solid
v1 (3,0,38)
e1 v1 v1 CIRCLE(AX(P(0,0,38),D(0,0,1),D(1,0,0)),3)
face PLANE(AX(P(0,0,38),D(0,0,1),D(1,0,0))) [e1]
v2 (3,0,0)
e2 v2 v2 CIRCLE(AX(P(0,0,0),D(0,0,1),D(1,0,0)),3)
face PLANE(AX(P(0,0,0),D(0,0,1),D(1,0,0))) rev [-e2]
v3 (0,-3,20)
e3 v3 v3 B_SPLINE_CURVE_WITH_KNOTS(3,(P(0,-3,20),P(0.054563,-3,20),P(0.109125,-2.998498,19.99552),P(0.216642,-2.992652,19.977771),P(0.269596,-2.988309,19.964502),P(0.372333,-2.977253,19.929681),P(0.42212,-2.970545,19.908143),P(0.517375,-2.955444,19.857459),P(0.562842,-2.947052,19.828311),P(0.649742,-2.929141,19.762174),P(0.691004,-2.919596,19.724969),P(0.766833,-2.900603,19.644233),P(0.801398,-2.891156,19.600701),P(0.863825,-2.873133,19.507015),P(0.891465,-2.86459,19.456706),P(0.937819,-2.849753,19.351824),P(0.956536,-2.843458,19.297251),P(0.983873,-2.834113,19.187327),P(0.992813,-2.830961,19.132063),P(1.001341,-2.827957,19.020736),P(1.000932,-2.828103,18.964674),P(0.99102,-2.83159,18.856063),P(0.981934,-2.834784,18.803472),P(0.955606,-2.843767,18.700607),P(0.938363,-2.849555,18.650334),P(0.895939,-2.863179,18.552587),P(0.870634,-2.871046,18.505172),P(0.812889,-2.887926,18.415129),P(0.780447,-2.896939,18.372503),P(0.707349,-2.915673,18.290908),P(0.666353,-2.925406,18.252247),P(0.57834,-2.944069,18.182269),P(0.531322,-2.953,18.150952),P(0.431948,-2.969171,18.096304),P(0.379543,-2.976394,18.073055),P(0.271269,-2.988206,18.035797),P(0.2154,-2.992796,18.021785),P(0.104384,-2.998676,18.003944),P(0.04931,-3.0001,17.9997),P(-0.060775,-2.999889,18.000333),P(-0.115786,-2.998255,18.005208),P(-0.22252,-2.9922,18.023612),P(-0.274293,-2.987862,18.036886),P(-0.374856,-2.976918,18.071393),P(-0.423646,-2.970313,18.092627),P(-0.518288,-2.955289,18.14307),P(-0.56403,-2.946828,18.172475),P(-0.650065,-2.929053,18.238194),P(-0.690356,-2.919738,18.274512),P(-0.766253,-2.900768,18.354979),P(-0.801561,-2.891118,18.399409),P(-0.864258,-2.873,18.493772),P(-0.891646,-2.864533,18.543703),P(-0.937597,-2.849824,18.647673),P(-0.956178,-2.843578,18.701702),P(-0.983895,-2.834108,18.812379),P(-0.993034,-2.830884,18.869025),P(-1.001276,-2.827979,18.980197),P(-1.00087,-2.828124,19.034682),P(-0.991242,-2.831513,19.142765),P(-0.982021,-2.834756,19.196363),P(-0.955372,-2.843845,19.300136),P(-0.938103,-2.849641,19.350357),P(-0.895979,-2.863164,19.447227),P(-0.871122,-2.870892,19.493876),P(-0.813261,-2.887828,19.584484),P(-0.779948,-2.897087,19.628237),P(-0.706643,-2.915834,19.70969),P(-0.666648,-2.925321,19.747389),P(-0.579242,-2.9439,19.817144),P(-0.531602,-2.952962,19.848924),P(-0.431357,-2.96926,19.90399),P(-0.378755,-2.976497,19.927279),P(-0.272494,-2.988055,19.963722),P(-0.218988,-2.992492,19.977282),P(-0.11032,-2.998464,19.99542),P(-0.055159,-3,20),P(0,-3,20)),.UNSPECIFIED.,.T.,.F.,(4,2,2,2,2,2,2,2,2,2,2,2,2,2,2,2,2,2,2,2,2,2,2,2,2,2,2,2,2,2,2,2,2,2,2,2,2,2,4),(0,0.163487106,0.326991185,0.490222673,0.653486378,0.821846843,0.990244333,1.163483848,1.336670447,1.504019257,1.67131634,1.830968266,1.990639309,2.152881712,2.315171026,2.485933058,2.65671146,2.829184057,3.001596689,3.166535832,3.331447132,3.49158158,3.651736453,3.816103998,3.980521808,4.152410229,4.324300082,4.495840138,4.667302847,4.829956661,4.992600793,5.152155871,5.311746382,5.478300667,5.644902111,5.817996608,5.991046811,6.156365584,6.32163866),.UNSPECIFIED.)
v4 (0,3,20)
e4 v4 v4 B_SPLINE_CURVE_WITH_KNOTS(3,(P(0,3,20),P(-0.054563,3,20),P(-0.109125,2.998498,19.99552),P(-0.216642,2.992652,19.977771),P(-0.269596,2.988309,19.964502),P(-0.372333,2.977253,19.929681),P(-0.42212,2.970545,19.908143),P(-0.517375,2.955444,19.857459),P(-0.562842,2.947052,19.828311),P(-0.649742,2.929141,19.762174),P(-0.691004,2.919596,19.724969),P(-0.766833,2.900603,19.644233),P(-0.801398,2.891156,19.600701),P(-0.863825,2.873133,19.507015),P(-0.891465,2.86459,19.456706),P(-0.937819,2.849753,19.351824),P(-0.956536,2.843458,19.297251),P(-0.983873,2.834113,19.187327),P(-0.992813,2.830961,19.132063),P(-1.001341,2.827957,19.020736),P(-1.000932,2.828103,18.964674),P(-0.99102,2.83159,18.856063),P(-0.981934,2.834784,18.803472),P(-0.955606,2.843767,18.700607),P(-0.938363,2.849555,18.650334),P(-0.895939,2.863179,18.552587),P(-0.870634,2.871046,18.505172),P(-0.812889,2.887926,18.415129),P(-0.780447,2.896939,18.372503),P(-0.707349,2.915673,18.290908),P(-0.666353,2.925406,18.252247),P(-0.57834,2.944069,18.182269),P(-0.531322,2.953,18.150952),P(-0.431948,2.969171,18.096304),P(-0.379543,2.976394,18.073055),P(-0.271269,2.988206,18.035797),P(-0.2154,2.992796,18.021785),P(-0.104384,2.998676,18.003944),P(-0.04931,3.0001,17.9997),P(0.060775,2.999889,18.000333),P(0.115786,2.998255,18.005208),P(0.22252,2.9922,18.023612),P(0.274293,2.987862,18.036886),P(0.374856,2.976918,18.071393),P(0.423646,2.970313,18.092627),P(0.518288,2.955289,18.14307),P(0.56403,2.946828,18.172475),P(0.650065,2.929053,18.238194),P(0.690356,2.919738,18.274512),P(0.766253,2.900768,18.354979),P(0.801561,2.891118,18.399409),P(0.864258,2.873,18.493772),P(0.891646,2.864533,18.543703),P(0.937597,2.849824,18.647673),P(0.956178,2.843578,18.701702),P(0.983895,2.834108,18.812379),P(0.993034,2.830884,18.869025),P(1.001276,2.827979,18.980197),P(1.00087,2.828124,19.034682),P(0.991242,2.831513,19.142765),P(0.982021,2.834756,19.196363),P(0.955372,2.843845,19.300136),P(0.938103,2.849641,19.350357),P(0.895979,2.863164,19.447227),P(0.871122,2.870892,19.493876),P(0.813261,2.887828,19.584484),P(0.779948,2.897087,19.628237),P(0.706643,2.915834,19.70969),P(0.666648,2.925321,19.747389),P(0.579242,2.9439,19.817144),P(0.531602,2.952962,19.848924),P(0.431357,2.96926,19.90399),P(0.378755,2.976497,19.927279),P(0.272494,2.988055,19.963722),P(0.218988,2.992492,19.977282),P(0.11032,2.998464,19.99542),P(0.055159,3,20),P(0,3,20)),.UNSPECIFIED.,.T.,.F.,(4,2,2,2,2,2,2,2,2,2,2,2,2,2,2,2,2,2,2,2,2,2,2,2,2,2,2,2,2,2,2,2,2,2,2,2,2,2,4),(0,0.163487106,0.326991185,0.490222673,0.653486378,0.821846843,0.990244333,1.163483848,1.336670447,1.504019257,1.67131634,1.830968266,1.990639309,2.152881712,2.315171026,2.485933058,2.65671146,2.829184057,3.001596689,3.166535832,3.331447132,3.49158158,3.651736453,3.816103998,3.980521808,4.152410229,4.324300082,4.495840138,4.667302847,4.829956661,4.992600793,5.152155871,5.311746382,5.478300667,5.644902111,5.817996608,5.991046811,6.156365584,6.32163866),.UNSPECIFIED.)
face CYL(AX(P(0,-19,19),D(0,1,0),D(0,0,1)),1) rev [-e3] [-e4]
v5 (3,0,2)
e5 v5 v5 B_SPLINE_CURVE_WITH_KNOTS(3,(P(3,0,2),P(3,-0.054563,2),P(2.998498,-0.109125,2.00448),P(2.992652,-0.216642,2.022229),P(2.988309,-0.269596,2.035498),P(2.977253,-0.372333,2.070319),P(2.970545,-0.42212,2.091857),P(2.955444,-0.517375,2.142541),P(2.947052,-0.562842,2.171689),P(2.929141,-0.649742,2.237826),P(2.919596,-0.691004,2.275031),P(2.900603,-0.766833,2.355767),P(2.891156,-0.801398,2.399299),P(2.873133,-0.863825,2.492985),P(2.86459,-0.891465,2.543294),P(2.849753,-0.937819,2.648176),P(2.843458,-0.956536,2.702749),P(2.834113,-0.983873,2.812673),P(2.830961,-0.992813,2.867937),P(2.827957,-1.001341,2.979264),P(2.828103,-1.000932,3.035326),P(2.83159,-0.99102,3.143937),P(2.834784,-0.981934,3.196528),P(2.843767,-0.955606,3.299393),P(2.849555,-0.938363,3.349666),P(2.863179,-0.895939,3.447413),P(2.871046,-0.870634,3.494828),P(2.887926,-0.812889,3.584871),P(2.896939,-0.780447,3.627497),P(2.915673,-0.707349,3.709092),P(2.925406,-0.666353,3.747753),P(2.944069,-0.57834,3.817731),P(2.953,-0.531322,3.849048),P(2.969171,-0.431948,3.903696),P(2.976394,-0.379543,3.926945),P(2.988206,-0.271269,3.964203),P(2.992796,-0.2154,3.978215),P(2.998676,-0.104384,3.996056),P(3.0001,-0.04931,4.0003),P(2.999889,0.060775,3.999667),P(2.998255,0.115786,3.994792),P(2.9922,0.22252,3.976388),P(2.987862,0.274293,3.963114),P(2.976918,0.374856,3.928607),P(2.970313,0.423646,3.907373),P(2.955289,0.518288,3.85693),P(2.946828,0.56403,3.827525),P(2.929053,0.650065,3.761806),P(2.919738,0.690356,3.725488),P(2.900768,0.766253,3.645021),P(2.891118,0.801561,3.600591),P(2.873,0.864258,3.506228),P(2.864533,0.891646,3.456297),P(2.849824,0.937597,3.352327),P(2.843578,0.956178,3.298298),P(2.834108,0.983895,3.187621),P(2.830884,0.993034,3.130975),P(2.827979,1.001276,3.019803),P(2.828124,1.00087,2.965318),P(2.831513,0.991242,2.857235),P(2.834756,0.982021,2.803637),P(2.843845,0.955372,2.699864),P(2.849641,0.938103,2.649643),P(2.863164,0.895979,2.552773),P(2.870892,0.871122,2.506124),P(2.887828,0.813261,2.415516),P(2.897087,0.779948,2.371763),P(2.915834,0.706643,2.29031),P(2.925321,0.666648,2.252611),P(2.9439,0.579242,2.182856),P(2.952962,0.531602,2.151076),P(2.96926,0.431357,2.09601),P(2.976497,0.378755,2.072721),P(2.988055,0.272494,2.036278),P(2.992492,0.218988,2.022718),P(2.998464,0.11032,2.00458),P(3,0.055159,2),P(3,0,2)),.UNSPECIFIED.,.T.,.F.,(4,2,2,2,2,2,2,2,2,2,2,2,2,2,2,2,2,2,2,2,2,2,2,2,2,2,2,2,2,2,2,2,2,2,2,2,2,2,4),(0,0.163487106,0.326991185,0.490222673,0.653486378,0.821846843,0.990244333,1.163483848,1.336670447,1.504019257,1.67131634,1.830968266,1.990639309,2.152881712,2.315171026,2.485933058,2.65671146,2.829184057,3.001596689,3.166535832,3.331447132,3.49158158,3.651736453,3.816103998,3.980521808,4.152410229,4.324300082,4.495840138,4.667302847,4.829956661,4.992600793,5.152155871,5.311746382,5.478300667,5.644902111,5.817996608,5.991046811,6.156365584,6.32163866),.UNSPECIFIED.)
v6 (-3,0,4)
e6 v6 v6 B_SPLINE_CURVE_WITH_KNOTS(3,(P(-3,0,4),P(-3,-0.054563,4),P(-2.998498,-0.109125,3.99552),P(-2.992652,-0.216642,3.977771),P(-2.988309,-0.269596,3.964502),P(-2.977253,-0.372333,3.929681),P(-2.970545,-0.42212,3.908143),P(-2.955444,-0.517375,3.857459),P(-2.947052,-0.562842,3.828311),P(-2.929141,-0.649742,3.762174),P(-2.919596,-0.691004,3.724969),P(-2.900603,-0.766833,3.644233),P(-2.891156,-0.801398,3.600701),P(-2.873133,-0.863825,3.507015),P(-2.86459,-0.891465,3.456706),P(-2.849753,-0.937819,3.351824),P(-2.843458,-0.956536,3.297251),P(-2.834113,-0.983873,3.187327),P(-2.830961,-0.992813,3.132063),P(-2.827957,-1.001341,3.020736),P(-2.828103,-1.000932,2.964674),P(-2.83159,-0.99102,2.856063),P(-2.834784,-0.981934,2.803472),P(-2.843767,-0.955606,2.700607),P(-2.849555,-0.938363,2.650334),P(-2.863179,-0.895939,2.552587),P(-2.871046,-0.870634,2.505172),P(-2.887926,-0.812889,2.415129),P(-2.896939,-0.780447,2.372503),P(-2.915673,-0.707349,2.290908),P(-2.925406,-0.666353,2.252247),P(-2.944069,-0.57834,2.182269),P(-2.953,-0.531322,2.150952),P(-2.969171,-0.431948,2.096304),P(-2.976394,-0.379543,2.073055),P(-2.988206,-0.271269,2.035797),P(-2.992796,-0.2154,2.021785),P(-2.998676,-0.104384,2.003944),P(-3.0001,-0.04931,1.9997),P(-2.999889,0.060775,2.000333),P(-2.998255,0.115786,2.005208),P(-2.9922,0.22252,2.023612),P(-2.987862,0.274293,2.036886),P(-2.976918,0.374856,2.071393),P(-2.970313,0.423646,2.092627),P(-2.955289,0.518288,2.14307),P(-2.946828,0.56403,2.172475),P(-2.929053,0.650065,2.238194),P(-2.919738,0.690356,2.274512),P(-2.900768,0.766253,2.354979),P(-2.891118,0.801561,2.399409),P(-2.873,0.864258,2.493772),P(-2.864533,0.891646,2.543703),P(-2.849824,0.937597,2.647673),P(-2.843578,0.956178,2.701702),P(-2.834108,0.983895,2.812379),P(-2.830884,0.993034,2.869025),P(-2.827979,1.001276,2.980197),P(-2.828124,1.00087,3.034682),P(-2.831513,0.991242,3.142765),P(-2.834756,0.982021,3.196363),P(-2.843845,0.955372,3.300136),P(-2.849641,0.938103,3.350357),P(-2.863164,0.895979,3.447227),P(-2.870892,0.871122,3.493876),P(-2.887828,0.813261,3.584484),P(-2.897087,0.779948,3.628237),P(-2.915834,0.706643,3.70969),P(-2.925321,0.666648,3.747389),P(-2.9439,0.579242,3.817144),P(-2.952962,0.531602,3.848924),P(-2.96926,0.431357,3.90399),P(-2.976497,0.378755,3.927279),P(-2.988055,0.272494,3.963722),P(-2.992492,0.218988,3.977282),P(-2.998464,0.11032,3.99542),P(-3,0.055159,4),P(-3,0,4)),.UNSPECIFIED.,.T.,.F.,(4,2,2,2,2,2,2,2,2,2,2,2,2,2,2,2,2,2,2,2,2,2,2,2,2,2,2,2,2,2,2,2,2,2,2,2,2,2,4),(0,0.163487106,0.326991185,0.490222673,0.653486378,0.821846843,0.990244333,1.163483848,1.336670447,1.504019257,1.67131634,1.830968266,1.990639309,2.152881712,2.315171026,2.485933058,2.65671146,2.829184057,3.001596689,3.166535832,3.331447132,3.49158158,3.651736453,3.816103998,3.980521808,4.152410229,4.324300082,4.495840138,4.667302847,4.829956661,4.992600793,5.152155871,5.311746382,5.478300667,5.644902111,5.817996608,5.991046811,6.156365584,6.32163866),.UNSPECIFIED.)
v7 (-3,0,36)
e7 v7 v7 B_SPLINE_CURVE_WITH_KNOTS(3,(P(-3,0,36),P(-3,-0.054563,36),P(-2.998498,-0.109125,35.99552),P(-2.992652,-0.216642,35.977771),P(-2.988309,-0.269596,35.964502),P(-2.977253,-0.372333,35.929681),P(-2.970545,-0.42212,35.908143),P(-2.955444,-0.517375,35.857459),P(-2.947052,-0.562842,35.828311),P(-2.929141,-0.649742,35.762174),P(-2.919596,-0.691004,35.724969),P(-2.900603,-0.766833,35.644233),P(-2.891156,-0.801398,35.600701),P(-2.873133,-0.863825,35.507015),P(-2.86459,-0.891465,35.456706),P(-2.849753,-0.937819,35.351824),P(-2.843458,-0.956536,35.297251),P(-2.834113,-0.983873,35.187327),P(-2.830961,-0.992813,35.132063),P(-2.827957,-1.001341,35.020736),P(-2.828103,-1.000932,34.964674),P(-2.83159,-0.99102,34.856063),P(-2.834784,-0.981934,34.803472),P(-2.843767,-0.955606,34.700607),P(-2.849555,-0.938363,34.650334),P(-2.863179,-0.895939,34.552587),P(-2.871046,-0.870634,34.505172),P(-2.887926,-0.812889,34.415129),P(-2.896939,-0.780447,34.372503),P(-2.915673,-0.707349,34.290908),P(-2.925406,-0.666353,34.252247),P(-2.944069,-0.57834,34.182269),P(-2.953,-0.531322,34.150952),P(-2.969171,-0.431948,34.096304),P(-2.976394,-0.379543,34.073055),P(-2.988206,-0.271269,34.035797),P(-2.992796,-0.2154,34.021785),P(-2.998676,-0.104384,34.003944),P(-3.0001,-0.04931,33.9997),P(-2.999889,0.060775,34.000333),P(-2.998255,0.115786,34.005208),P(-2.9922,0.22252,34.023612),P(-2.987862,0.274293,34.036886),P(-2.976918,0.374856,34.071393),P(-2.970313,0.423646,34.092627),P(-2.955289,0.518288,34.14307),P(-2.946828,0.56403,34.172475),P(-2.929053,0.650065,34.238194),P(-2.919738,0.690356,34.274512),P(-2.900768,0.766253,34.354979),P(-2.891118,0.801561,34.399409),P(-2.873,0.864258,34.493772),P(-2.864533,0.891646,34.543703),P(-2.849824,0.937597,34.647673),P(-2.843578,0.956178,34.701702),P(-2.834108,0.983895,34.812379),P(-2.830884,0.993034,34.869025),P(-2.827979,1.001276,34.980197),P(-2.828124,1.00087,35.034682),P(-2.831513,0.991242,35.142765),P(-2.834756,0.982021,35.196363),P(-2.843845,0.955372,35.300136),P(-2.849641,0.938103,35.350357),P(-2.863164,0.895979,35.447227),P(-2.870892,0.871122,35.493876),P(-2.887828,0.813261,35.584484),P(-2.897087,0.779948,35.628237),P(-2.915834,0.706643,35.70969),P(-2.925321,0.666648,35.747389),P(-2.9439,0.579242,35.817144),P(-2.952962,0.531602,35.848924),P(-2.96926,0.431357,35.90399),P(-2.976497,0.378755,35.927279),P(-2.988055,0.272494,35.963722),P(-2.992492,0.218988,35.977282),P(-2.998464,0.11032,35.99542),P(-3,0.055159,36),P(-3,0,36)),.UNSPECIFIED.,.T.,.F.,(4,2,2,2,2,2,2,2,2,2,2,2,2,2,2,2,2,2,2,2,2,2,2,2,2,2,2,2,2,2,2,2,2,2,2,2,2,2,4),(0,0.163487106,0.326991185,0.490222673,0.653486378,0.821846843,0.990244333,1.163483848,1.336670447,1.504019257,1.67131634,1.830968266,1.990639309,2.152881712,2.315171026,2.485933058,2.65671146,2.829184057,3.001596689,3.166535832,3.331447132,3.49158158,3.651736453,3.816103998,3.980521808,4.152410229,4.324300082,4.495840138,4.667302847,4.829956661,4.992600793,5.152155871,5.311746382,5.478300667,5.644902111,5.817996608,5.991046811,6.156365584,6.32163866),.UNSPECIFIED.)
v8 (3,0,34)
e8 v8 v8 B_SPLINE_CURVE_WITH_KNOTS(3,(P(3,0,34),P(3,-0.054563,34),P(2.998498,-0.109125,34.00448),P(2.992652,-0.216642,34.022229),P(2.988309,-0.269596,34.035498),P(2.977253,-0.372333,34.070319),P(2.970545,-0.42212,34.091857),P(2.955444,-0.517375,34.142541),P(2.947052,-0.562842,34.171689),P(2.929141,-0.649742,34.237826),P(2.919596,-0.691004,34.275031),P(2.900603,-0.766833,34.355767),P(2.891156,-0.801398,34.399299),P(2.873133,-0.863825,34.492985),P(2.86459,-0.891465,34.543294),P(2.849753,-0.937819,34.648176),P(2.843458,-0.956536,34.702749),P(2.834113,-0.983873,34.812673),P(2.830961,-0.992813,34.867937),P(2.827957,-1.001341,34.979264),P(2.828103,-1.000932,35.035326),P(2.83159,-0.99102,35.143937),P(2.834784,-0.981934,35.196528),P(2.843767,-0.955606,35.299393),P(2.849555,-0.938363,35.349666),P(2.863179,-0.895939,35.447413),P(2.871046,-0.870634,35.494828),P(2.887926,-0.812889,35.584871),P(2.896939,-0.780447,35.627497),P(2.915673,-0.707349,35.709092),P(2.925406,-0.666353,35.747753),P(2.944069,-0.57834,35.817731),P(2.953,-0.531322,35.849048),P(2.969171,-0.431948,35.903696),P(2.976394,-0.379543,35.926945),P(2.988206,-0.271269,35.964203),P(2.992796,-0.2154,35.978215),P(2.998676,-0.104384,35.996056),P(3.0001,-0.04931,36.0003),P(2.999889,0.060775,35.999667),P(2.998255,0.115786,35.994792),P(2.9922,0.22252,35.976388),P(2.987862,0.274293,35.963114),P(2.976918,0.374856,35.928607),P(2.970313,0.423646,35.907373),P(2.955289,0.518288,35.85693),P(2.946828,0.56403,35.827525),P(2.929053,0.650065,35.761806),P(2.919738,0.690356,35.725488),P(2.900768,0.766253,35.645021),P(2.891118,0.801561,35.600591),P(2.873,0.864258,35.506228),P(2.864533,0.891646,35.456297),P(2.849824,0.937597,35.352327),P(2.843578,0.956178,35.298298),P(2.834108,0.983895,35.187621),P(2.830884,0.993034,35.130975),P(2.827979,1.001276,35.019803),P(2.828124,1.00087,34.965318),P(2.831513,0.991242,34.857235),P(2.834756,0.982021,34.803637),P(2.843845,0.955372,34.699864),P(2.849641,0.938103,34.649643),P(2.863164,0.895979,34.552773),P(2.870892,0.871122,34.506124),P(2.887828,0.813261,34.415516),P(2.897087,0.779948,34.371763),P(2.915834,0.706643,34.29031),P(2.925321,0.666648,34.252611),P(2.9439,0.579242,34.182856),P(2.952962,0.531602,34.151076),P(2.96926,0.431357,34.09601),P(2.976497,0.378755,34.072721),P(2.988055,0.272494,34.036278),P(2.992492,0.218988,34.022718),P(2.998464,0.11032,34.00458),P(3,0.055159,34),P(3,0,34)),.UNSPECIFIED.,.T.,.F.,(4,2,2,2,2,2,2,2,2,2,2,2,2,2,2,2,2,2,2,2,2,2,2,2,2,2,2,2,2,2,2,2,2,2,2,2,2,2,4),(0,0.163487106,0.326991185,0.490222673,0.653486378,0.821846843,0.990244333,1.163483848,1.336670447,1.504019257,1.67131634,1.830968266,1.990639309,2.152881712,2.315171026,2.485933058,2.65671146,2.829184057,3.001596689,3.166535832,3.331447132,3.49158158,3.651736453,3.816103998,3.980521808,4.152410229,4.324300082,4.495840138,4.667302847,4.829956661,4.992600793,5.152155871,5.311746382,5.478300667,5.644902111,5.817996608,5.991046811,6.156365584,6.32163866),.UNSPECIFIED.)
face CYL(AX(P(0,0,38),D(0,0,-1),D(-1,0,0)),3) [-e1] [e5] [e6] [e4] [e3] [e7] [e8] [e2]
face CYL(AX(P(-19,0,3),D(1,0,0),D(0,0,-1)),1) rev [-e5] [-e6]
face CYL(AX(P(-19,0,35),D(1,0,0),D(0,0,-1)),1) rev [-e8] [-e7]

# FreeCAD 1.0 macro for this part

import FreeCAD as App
import Part
import Sketcher

V = App.Vector

doc = App.newDocument("Part")
body = doc.addObject("PartDesign::Body", "Body")

sketch1 = body.newObject("Sketcher::SketchObject", "Sketch")
sketch1.AttachmentSupport = (doc.getObject("XY_Plane"), [""])
sketch1.MapMode = "FlatFace"
sketch1.addGeometry(Part.Circle(V(0, 0, 0), V(0, 0, 1), 3), False)
sketch1.addConstraint(Sketcher.Constraint("Coincident", 0, 3, -1, 1))
sketch1.addConstraint(Sketcher.Constraint("Diameter", 0, 6.0))
pad1 = body.newObject("PartDesign::Pad", "Pad")
pad1.Profile = sketch1
pad1.Length = 38

sketch2 = body.newObject("Sketcher::SketchObject", "Sketch001")
sketch2.AttachmentSupport = (doc.getObject("XZ_Plane"), [""])
sketch2.MapMode = "FlatFace"
sketch2.addGeometry(Part.Circle(V(0, 19, 0), V(0, 0, 1), 1), False)
sketch2.addConstraint(Sketcher.Constraint("PointOnObject", 0, 3, -2))
sketch2.addConstraint(Sketcher.Constraint("Diameter", 0, 2.0))
sketch2.addConstraint(Sketcher.Constraint("DistanceY", -1, 1, 0, 3, 19.0))
pocket1 = body.newObject("PartDesign::Pocket", "Pocket")
pocket1.Profile = sketch2
pocket1.Length = 38
pocket1.Midplane = True

sketch3 = body.newObject("Sketcher::SketchObject", "Sketch002")
sketch3.AttachmentSupport = (doc.getObject("YZ_Plane"), [""])
sketch3.MapMode = "FlatFace"
sketch3.addGeometry(Part.Circle(V(0, 35, 0), V(0, 0, 1), 1), False)
sketch3.addGeometry(Part.Circle(V(0, 3, 0), V(0, 0, 1), 1), False)
sketch3.addConstraint(Sketcher.Constraint("Equal", 0, 1))
sketch3.addConstraint(Sketcher.Constraint("PointOnObject", 0, 3, -2))
sketch3.addConstraint(Sketcher.Constraint("PointOnObject", 1, 3, -2))
sketch3.addConstraint(Sketcher.Constraint("Diameter", 0, 2.0))
sketch3.addConstraint(Sketcher.Constraint("DistanceY", -1, 1, 0, 3, 35.0))
sketch3.addConstraint(Sketcher.Constraint("DistanceY", -1, 1, 1, 3, 3.0))
pocket2 = body.newObject("PartDesign::Pocket", "Pocket001")
pocket2.Profile = sketch3
pocket2.Length = 38
pocket2.Midplane = True

doc.recompute()
